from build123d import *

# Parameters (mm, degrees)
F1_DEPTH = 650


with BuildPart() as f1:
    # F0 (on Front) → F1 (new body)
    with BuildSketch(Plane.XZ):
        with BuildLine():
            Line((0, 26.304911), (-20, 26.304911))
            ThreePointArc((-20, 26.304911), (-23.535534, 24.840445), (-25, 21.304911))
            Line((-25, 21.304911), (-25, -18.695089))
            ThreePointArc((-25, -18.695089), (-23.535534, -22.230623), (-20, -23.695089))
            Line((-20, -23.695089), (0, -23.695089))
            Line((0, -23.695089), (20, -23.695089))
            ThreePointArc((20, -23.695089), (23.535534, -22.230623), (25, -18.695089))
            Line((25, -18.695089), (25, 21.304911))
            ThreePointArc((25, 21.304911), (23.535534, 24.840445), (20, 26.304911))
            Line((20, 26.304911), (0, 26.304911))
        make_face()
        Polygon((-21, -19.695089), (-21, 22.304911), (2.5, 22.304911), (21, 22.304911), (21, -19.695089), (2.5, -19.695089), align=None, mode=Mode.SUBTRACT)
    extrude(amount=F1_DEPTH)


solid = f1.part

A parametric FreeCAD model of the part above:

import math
import FreeCAD as App
import Part
import Sketcher
Q = App.Units.Quantity

doc = App.newDocument("Part")
body = doc.addObject("PartDesign::Body", "Body")

# Sketch on XZ plane
sketch1 = body.newObject("Sketcher::SketchObject", "Sketch")
sketch1.AttachmentSupport = (doc.getObject("XZ_Plane"), [""])
sketch1.MapMode = "FlatFace"
sketch1.addGeometry(Part.ArcOfCircle(Part.Circle(App.Vector(-20, 21.3, 0), App.Vector(0, 0, 1), 5), math.radians(90), math.radians(180)), False)
sketch1.addGeometry(Part.LineSegment(App.Vector(-25, 21.3, 0), App.Vector(-25, -18.7, 0)), False)
sketch1.addGeometry(Part.ArcOfCircle(Part.Circle(App.Vector(-20, -18.7, 0), App.Vector(0, 0, 1), 5), math.radians(180), math.radians(270)), False)
sketch1.addGeometry(Part.LineSegment(App.Vector(-20, -23.7, 0), App.Vector(20, -23.7, 0)), False)
sketch1.addGeometry(Part.ArcOfCircle(Part.Circle(App.Vector(20, -18.7, 0), App.Vector(0, 0, 1), 5), math.radians(-90), math.radians(0)), False)
sketch1.addGeometry(Part.LineSegment(App.Vector(25, -18.7, 0), App.Vector(25, 21.3, 0)), False)
sketch1.addGeometry(Part.ArcOfCircle(Part.Circle(App.Vector(20, 21.3, 0), App.Vector(0, 0, 1), 5), math.radians(0), math.radians(90)), False)
sketch1.addGeometry(Part.LineSegment(App.Vector(20, 26.3, 0), App.Vector(-20, 26.3, 0)), False)
sketch1.addGeometry(Part.LineSegment(App.Vector(21, -19.7, 0), App.Vector(-21, -19.7, 0)), False)
sketch1.addGeometry(Part.LineSegment(App.Vector(-21, -19.7, 0), App.Vector(-21, 22.3, 0)), False)
sketch1.addGeometry(Part.LineSegment(App.Vector(-21, 22.3, 0), App.Vector(21, 22.3, 0)), False)
sketch1.addGeometry(Part.LineSegment(App.Vector(21, 22.3, 0), App.Vector(21, -19.7, 0)), False)
sketch1.addConstraint(Sketcher.Constraint("Tangent", 0, 2, 1, 1))
sketch1.addConstraint(Sketcher.Constraint("Tangent", 1, 2, 2, 1))
sketch1.addConstraint(Sketcher.Constraint("Tangent", 2, 2, 3, 1))
sketch1.addConstraint(Sketcher.Constraint("Tangent", 3, 2, 4, 1))
sketch1.addConstraint(Sketcher.Constraint("Tangent", 4, 2, 5, 1))
sketch1.addConstraint(Sketcher.Constraint("Tangent", 5, 2, 6, 1))
sketch1.addConstraint(Sketcher.Constraint("Tangent", 6, 2, 7, 1))
sketch1.addConstraint(Sketcher.Constraint("Tangent", 7, 2, 0, 1))
sketch1.addConstraint(Sketcher.Constraint("Coincident", 8, 2, 9, 1))
sketch1.addConstraint(Sketcher.Constraint("Coincident", 9, 2, 10, 1))
sketch1.addConstraint(Sketcher.Constraint("Coincident", 10, 2, 11, 1))
sketch1.addConstraint(Sketcher.Constraint("Coincident", 11, 2, 8, 1))
sketch1.addConstraint(Sketcher.Constraint("Vertical", 1))
sketch1.addConstraint(Sketcher.Constraint("Horizontal", 3))
sketch1.addConstraint(Sketcher.Constraint("Vertical", 5))
sketch1.addConstraint(Sketcher.Constraint("Horizontal", 7))
sketch1.addConstraint(Sketcher.Constraint("Horizontal", 8))
sketch1.addConstraint(Sketcher.Constraint("Vertical", 9))
sketch1.addConstraint(Sketcher.Constraint("Horizontal", 10))
sketch1.addConstraint(Sketcher.Constraint("Vertical", 11))
sketch1.addConstraint(Sketcher.Constraint("Equal", 0, 2))
sketch1.addConstraint(Sketcher.Constraint("Equal", 2, 4))
sketch1.addConstraint(Sketcher.Constraint("Equal", 4, 6))
sketch1.addConstraint(Sketcher.Constraint("Equal", 7, 1))
sketch1.addConstraint(Sketcher.Constraint("Equal", 10, 9))
sketch1.addConstraint(Sketcher.Constraint("Radius", 0, Q("5 mm")))
sketch1.addConstraint(Sketcher.Constraint("DistanceX", 3, 1, 3, 2, Q("40 mm")))
sketch1.addConstraint(Sketcher.Constraint("DistanceX", 8, 2, 8, 1, Q("42 mm")))
sketch1.addConstraint(Sketcher.Constraint("DistanceX", 0, 3, -1, 1, Q("20 mm")))
sketch1.addConstraint(Sketcher.Constraint("DistanceX", 8, 2, -1, 1, Q("21 mm")))
sketch1.addConstraint(Sketcher.Constraint("DistanceY", 8, 2, 2, 3, Q("1 mm")))
sketch1.addConstraint(Sketcher.Constraint("DistanceY", -1, 1, 0, 3, Q("21.304911 mm")))
pad1 = body.newObject("PartDesign::Pad", "Pad")
pad1.Profile = sketch1
pad1.Length = 650

doc.recompute()
